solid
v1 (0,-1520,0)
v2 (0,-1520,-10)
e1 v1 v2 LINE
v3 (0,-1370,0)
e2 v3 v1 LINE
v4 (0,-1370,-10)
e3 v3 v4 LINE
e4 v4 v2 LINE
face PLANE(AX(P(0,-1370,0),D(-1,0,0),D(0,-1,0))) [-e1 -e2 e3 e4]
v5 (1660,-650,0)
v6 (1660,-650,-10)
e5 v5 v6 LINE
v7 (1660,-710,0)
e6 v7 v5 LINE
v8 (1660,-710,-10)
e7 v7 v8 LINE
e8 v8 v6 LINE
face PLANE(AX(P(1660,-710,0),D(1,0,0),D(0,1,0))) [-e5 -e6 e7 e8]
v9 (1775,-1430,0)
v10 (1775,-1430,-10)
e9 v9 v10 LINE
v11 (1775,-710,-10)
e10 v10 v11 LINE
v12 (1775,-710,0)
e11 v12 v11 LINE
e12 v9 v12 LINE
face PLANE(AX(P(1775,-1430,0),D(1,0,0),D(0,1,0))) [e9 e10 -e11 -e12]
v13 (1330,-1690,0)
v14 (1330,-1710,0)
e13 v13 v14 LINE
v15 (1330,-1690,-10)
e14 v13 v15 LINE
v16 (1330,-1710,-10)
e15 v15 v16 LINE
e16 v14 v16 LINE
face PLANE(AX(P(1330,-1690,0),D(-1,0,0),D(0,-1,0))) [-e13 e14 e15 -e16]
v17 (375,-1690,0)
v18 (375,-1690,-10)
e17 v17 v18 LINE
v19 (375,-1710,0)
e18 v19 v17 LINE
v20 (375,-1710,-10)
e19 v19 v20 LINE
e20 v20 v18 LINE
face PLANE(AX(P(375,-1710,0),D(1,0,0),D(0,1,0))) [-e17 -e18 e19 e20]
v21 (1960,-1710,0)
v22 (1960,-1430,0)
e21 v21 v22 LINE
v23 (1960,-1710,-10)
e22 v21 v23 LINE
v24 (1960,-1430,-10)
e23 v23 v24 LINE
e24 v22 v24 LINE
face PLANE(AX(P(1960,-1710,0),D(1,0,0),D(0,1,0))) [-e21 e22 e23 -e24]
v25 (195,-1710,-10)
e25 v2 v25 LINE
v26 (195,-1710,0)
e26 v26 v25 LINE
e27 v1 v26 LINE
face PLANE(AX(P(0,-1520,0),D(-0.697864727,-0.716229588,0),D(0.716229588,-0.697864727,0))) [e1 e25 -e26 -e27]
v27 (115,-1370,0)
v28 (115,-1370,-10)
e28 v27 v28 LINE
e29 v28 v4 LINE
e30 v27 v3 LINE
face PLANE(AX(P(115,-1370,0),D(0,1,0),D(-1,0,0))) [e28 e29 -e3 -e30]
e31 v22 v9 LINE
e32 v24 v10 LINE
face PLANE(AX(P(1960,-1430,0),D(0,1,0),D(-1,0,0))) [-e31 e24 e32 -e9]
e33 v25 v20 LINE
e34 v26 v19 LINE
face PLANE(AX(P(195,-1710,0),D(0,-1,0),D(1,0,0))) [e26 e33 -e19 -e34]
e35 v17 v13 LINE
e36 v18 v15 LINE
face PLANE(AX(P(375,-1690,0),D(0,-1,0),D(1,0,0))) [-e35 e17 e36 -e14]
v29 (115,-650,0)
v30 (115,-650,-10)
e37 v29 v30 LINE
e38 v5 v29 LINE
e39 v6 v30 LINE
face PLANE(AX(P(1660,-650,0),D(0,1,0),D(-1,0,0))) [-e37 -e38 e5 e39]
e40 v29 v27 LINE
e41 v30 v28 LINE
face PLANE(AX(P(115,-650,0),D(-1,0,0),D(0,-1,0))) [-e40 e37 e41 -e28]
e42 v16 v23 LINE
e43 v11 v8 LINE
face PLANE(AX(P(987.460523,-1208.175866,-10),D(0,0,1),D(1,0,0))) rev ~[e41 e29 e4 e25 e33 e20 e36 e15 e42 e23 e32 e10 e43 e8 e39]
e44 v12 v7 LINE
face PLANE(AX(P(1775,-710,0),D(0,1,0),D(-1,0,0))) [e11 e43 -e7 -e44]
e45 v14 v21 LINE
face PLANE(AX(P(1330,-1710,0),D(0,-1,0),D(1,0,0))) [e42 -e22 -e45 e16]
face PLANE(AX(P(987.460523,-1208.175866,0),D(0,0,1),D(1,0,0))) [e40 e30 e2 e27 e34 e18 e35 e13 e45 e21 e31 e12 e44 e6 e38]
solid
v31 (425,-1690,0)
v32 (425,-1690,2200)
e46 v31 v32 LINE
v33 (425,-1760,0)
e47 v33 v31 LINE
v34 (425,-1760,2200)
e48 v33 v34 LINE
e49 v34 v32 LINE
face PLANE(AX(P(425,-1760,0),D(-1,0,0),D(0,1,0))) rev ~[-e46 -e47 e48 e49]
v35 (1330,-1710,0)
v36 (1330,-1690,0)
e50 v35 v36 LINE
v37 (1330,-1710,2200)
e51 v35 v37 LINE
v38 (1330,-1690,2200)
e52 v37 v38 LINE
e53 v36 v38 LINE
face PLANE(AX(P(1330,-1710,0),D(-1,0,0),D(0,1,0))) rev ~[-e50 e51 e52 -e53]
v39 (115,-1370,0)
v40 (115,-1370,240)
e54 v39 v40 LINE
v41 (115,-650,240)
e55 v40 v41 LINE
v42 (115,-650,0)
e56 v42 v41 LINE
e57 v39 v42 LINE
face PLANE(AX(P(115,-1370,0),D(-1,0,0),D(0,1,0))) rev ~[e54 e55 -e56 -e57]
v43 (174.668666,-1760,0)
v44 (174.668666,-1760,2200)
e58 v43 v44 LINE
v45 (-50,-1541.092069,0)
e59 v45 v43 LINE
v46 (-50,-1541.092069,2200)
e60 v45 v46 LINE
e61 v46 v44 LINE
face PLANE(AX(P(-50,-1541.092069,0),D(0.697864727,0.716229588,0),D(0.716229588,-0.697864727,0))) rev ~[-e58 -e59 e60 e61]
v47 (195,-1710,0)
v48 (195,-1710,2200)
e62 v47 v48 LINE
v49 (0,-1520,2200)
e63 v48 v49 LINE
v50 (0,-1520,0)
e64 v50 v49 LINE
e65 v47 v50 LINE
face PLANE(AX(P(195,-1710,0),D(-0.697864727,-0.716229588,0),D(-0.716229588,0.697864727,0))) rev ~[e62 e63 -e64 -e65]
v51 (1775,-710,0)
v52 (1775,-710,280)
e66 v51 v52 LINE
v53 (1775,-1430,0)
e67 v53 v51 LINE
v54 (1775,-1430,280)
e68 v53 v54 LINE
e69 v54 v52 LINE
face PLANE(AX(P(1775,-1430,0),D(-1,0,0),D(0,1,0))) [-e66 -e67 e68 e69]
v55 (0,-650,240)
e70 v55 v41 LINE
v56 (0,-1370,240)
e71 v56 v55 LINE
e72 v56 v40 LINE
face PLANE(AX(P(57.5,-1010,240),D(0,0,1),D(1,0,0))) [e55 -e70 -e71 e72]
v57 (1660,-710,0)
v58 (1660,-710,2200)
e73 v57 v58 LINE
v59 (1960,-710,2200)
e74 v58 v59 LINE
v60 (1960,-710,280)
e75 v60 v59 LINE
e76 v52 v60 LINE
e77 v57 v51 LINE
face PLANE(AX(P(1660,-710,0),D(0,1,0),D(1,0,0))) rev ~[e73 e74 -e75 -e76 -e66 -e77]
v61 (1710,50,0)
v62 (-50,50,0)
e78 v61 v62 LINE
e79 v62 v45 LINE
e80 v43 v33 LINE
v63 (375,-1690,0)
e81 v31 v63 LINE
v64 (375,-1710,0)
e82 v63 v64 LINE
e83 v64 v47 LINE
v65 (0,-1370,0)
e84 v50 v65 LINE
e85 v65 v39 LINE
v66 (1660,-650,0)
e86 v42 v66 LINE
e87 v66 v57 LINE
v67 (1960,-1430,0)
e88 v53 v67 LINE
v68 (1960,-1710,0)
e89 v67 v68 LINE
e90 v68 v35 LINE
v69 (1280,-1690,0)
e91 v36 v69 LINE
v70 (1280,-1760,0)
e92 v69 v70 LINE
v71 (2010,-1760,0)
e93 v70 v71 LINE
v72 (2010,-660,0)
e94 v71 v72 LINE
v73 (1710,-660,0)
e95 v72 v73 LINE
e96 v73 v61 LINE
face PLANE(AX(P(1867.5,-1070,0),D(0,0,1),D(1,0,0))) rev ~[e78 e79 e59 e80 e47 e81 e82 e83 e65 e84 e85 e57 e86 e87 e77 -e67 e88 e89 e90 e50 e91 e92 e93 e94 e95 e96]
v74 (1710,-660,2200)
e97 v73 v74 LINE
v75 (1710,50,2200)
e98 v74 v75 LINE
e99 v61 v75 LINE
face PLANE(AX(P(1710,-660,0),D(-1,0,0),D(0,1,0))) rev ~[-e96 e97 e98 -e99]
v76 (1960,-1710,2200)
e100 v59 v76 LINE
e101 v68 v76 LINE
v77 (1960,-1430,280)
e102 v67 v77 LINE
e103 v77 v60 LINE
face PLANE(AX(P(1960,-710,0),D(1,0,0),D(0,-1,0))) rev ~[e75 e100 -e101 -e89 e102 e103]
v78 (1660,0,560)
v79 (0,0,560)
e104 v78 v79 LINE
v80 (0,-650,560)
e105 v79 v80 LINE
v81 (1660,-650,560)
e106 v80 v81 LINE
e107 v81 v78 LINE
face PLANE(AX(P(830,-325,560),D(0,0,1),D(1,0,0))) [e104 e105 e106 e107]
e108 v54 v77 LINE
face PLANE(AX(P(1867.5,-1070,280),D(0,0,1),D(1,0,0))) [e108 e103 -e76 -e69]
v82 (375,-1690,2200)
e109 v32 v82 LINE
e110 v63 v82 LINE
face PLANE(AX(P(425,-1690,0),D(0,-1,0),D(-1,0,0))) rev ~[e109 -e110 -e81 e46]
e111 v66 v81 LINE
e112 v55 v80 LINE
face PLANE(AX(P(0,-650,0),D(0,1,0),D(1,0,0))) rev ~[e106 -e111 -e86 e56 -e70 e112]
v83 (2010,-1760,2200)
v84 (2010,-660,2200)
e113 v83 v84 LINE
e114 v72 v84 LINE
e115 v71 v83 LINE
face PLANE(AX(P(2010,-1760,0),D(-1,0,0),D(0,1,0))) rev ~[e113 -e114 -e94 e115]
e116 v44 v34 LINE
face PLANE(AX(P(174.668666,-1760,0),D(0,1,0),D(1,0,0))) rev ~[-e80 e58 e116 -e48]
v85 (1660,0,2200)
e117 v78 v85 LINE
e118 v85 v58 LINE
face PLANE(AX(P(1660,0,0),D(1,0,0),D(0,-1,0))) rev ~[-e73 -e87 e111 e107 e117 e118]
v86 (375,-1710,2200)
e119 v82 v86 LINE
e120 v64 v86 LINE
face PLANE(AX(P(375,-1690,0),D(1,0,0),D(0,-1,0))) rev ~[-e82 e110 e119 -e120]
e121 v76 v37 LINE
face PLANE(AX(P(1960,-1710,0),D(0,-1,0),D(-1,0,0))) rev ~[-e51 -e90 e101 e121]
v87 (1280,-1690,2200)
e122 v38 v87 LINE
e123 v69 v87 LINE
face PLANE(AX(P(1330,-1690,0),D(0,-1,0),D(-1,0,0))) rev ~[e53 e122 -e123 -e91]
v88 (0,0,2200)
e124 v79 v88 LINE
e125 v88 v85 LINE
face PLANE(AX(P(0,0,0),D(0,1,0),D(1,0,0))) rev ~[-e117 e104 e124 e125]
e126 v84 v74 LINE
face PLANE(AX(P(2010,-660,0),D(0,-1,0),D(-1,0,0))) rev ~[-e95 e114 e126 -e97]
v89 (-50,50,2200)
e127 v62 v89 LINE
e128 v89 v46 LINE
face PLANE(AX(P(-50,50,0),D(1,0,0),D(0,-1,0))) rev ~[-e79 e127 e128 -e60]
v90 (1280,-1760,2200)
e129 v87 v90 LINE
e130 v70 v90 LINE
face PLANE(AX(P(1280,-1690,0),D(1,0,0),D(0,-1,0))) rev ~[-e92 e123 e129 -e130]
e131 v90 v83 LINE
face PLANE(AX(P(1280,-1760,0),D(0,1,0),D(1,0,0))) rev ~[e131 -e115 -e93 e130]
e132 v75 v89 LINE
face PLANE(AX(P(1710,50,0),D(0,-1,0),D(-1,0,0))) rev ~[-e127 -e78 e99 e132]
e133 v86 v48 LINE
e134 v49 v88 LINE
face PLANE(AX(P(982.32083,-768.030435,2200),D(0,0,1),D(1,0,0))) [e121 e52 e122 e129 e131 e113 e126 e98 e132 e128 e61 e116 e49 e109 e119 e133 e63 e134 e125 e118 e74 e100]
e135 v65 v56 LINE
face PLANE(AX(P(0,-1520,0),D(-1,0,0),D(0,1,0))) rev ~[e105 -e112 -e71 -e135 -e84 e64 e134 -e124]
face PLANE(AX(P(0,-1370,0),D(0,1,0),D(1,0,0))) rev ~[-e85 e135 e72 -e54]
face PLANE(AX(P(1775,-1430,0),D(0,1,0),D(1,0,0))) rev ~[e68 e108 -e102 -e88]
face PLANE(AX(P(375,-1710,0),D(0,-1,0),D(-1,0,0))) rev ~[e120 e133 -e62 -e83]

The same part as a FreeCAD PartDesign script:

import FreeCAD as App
import Part
import Sketcher
from FreeCAD import Vector
Q = App.Units.Quantity

doc = App.newDocument("Part")
body = doc.addObject("PartDesign::Body", "Body")

sketch1 = body.newObject("Sketcher::SketchObject", "Sketch")
sketch1.AttachmentSupport = (doc.getObject("XY_Plane"), [""])
sketch1.MapMode = "FlatFace"
sketch1.addGeometry(Part.LineSegment(Vector(0, 0, 0), Vector(1660, 0, 0)), False)
sketch1.addGeometry(Part.LineSegment(Vector(1660, 0, 0), Vector(1660, -710, 0)), False)
sketch1.addGeometry(Part.LineSegment(Vector(1660, -710, 0), Vector(1960, -710, 0)), False)
sketch1.addGeometry(Part.LineSegment(Vector(1960, -710, 0), Vector(1960, -1710, 0)), False)
sketch1.addGeometry(Part.LineSegment(Vector(1960, -1710, 0), Vector(1330, -1710, 0)), False)
sketch1.addGeometry(Part.LineSegment(Vector(1330, -1710, 0), Vector(1330, -1690, 0)), False)
sketch1.addGeometry(Part.LineSegment(Vector(1330, -1690, 0), Vector(1280, -1690, 0)), False)
sketch1.addGeometry(Part.LineSegment(Vector(1280, -1690, 0), Vector(1280, -1760, 0)), False)
sketch1.addGeometry(Part.LineSegment(Vector(1280, -1760, 0), Vector(2010, -1760, 0)), False)
sketch1.addGeometry(Part.LineSegment(Vector(2010, -1760, 0), Vector(2010, -660, 0)), False)
sketch1.addGeometry(Part.LineSegment(Vector(2010, -660, 0), Vector(1710, -660, 0)), False)
sketch1.addGeometry(Part.LineSegment(Vector(1710, -660, 0), Vector(1710, 50, 0)), False)
sketch1.addGeometry(Part.LineSegment(Vector(1710, 50, 0), Vector(-50, 50, 0)), False)
sketch1.addGeometry(Part.LineSegment(Vector(-50, 50, 0), Vector(-50, -1541, 0)), False)
sketch1.addGeometry(Part.LineSegment(Vector(-50, -1541, 0), Vector(175, -1760, 0)), False)
sketch1.addGeometry(Part.LineSegment(Vector(175, -1760, 0), Vector(425, -1760, 0)), False)
sketch1.addGeometry(Part.LineSegment(Vector(425, -1760, 0), Vector(425, -1690, 0)), False)
sketch1.addGeometry(Part.LineSegment(Vector(425, -1690, 0), Vector(375, -1690, 0)), False)
sketch1.addGeometry(Part.LineSegment(Vector(375, -1690, 0), Vector(375, -1710, 0)), False)
sketch1.addGeometry(Part.LineSegment(Vector(375, -1710, 0), Vector(195, -1710, 0)), False)
sketch1.addGeometry(Part.LineSegment(Vector(195, -1710, 0), Vector(0, -1520, 0)), False)
sketch1.addGeometry(Part.LineSegment(Vector(0, -1520, 0), Vector(0, 0, 0)), False)
sketch1.addConstraint(Sketcher.Constraint("Coincident", 0, 2, 1, 1))
sketch1.addConstraint(Sketcher.Constraint("Coincident", 1, 2, 2, 1))
sketch1.addConstraint(Sketcher.Constraint("Coincident", 2, 2, 3, 1))
sketch1.addConstraint(Sketcher.Constraint("Coincident", 3, 2, 4, 1))
sketch1.addConstraint(Sketcher.Constraint("Coincident", 4, 2, 5, 1))
sketch1.addConstraint(Sketcher.Constraint("Coincident", 5, 2, 6, 1))
sketch1.addConstraint(Sketcher.Constraint("Coincident", 6, 2, 7, 1))
sketch1.addConstraint(Sketcher.Constraint("Coincident", 7, 2, 8, 1))
sketch1.addConstraint(Sketcher.Constraint("Coincident", 8, 2, 9, 1))
sketch1.addConstraint(Sketcher.Constraint("Coincident", 9, 2, 10, 1))
sketch1.addConstraint(Sketcher.Constraint("Coincident", 10, 2, 11, 1))
sketch1.addConstraint(Sketcher.Constraint("Coincident", 11, 2, 12, 1))
sketch1.addConstraint(Sketcher.Constraint("Coincident", 12, 2, 13, 1))
sketch1.addConstraint(Sketcher.Constraint("Coincident", 13, 2, 14, 1))
sketch1.addConstraint(Sketcher.Constraint("Coincident", 14, 2, 15, 1))
sketch1.addConstraint(Sketcher.Constraint("Coincident", 15, 2, 16, 1))
sketch1.addConstraint(Sketcher.Constraint("Coincident", 16, 2, 17, 1))
sketch1.addConstraint(Sketcher.Constraint("Coincident", 17, 2, 18, 1))
sketch1.addConstraint(Sketcher.Constraint("Coincident", 18, 2, 19, 1))
sketch1.addConstraint(Sketcher.Constraint("Coincident", 19, 2, 20, 1))
sketch1.addConstraint(Sketcher.Constraint("Coincident", 20, 2, 21, 1))
sketch1.addConstraint(Sketcher.Constraint("Coincident", 21, 2, 0, 1))
sketch1.addConstraint(Sketcher.Constraint("Horizontal", 0))
sketch1.addConstraint(Sketcher.Constraint("Vertical", 1))
sketch1.addConstraint(Sketcher.Constraint("Horizontal", 2))
sketch1.addConstraint(Sketcher.Constraint("Vertical", 3))
sketch1.addConstraint(Sketcher.Constraint("Horizontal", 4))
sketch1.addConstraint(Sketcher.Constraint("Vertical", 5))
sketch1.addConstraint(Sketcher.Constraint("Horizontal", 6))
sketch1.addConstraint(Sketcher.Constraint("Vertical", 7))
sketch1.addConstraint(Sketcher.Constraint("Horizontal", 8))
sketch1.addConstraint(Sketcher.Constraint("Vertical", 9))
sketch1.addConstraint(Sketcher.Constraint("Horizontal", 10))
sketch1.addConstraint(Sketcher.Constraint("Vertical", 11))
sketch1.addConstraint(Sketcher.Constraint("Horizontal", 12))
sketch1.addConstraint(Sketcher.Constraint("Vertical", 13))
sketch1.addConstraint(Sketcher.Constraint("Horizontal", 15))
sketch1.addConstraint(Sketcher.Constraint("Vertical", 16))
sketch1.addConstraint(Sketcher.Constraint("Horizontal", 17))
sketch1.addConstraint(Sketcher.Constraint("Vertical", 18))
sketch1.addConstraint(Sketcher.Constraint("Horizontal", 19))
sketch1.addConstraint(Sketcher.Constraint("Vertical", 21))
sketch1.addConstraint(Sketcher.Constraint("Coincident", 21, 2, -1, 1))
sketch1.addConstraint(Sketcher.Constraint("Parallel", 14, 20))
sketch1.addConstraint(Sketcher.Constraint("Horizontal", 8, 2, 14, 2))
sketch1.addConstraint(Sketcher.Constraint("Horizontal", 6, 2, 16, 2))
sketch1.addConstraint(Sketcher.Constraint("Horizontal", 4, 2, 18, 2))
sketch1.addConstraint(Sketcher.Constraint("Equal", 2, 10))
sketch1.addConstraint(Sketcher.Constraint("Equal", 6, 17))
sketch1.addConstraint(Sketcher.Constraint("Equal", 1, 11))
sketch1.addConstraint(Sketcher.Constraint("DistanceX", 0, 1, 0, 2, Q("1660 mm")))
sketch1.addConstraint(Sketcher.Constraint("DistanceX", 2, 1, 2, 2, Q("300 mm")))
sketch1.addConstraint(Sketcher.Constraint("DistanceX", 4, 2, 4, 1, Q("630 mm")))
sketch1.addConstraint(Sketcher.Constraint("DistanceX", 6, 2, 6, 1, Q("50 mm")))
sketch1.addConstraint(Sketcher.Constraint("DistanceX", 8, 1, 8, 2, Q("730 mm")))
sketch1.addConstraint(Sketcher.Constraint("DistanceX", 12, 2, 12, 1, Q("1760 mm")))
sketch1.addConstraint(Sketcher.Constraint("DistanceX", 19, 2, 19, 1, Q("180 mm")))
sketch1.addConstraint(Sketcher.Constraint("DistanceY", 1, 2, 1, 1, Q("710 mm")))
sketch1.addConstraint(Sketcher.Constraint("DistanceY", 3, 2, 3, 1, Q("1000 mm")))
sketch1.addConstraint(Sketcher.Constraint("DistanceY", 5, 1, 5, 2, Q("20 mm")))
sketch1.addConstraint(Sketcher.Constraint("DistanceY", 7, 2, 7, 1, Q("70 mm")))
sketch1.addConstraint(Sketcher.Constraint("DistanceY", 9, 1, 9, 2, Q("1100 mm")))
sketch1.addConstraint(Sketcher.Constraint("DistanceY", 21, 1, 21, 2, Q("1520 mm")))
sketch1.addConstraint(Sketcher.Constraint("DistanceX", -1, 1, 15, 2, Q("425 mm")))
sketch1.addConstraint(Sketcher.Constraint("DistanceY", 13, 2, 13, 1, Q("1591.092069 mm")))
pad1 = body.newObject("PartDesign::Pad", "Pad")
pad1.Profile = sketch1
pad1.Length = 2200

sketch2 = body.newObject("Sketcher::SketchObject", "Sketch001")
sketch2.AttachmentSupport = (doc.getObject("XY_Plane"), [""])
sketch2.MapMode = "FlatFace"
sketch2.addGeometry(Part.LineSegment(Vector(1660, 0, 0), Vector(0, 0, 0)), False)
sketch2.addGeometry(Part.LineSegment(Vector(0, 0, 0), Vector(0, -650, 0)), False)
sketch2.addGeometry(Part.LineSegment(Vector(0, -650, 0), Vector(1660, -650, 0)), False)
sketch2.addGeometry(Part.LineSegment(Vector(1660, -650, 0), Vector(1660, 0, 0)), False)
sketch2.addConstraint(Sketcher.Constraint("Coincident", 0, 2, 1, 1))
sketch2.addConstraint(Sketcher.Constraint("Coincident", 1, 2, 2, 1))
sketch2.addConstraint(Sketcher.Constraint("Coincident", 2, 2, 3, 1))
sketch2.addConstraint(Sketcher.Constraint("Coincident", 3, 2, 0, 1))
sketch2.addConstraint(Sketcher.Constraint("Horizontal", 0))
sketch2.addConstraint(Sketcher.Constraint("Vertical", 1))
sketch2.addConstraint(Sketcher.Constraint("Horizontal", 2))
sketch2.addConstraint(Sketcher.Constraint("Vertical", 3))
sketch2.addConstraint(Sketcher.Constraint("Coincident", 0, 2, -1, 1))
sketch2.addConstraint(Sketcher.Constraint("DistanceX", 0, 2, 0, 1, Q("1660 mm")))
sketch2.addConstraint(Sketcher.Constraint("DistanceY", 1, 2, 1, 1, Q("650 mm")))
pad2 = body.newObject("PartDesign::Pad", "Pad001")
pad2.Profile = sketch2
pad2.Length = 560

sketch3 = body.newObject("Sketcher::SketchObject", "Sketch002")
sketch3.AttachmentSupport = (doc.getObject("XY_Plane"), [""])
sketch3.MapMode = "FlatFace"
sketch3.addGeometry(Part.LineSegment(Vector(0, -650, 0), Vector(0, -1370, 0)), False)
sketch3.addGeometry(Part.LineSegment(Vector(0, -1370, 0), Vector(115, -1370, 0)), False)
sketch3.addGeometry(Part.LineSegment(Vector(115, -1370, 0), Vector(115, -650, 0)), False)
sketch3.addGeometry(Part.LineSegment(Vector(115, -650, 0), Vector(0, -650, 0)), False)
sketch3.addConstraint(Sketcher.Constraint("Coincident", 0, 2, 1, 1))
sketch3.addConstraint(Sketcher.Constraint("Coincident", 1, 2, 2, 1))
sketch3.addConstraint(Sketcher.Constraint("Coincident", 2, 2, 3, 1))
sketch3.addConstraint(Sketcher.Constraint("Coincident", 3, 2, 0, 1))
sketch3.addConstraint(Sketcher.Constraint("Vertical", 0))
sketch3.addConstraint(Sketcher.Constraint("Horizontal", 1))
sketch3.addConstraint(Sketcher.Constraint("Vertical", 2))
sketch3.addConstraint(Sketcher.Constraint("Horizontal", 3))
sketch3.addConstraint(Sketcher.Constraint("PointOnObject", 0, 2, -2))
sketch3.addConstraint(Sketcher.Constraint("DistanceX", 1, 1, 1, 2, Q("115 mm")))
sketch3.addConstraint(Sketcher.Constraint("DistanceY", 0, 2, 0, 1, Q("720 mm")))
sketch3.addConstraint(Sketcher.Constraint("DistanceY", 0, 2, -1, 1, Q("1370 mm")))
pad3 = body.newObject("PartDesign::Pad", "Pad002")
pad3.Profile = sketch3
pad3.Length = 240

sketch4 = body.newObject("Sketcher::SketchObject", "Sketch003")
sketch4.AttachmentSupport = (doc.getObject("XY_Plane"), [""])
sketch4.MapMode = "FlatFace"
sketch4.addGeometry(Part.LineSegment(Vector(1775, -710, 0), Vector(1775, -1430, 0)), False)
sketch4.addGeometry(Part.LineSegment(Vector(1775, -1430, 0), Vector(1960, -1430, 0)), False)
sketch4.addGeometry(Part.LineSegment(Vector(1960, -1430, 0), Vector(1960, -710, 0)), False)
sketch4.addGeometry(Part.LineSegment(Vector(1960, -710, 0), Vector(1775, -710, 0)), False)
sketch4.addConstraint(Sketcher.Constraint("Coincident", 0, 2, 1, 1))
sketch4.addConstraint(Sketcher.Constraint("Coincident", 1, 2, 2, 1))
sketch4.addConstraint(Sketcher.Constraint("Coincident", 2, 2, 3, 1))
sketch4.addConstraint(Sketcher.Constraint("Coincident", 3, 2, 0, 1))
sketch4.addConstraint(Sketcher.Constraint("Vertical", 0))
sketch4.addConstraint(Sketcher.Constraint("Horizontal", 1))
sketch4.addConstraint(Sketcher.Constraint("Vertical", 2))
sketch4.addConstraint(Sketcher.Constraint("Horizontal", 3))
sketch4.addConstraint(Sketcher.Constraint("DistanceX", 1, 1, 1, 2, Q("185 mm")))
sketch4.addConstraint(Sketcher.Constraint("DistanceY", 0, 2, 0, 1, Q("720 mm")))
sketch4.addConstraint(Sketcher.Constraint("DistanceX", -1, 1, 0, 2, Q("1775 mm")))
sketch4.addConstraint(Sketcher.Constraint("DistanceY", 0, 2, -1, 1, Q("1430 mm")))
pad4 = body.newObject("PartDesign::Pad", "Pad003")
pad4.Profile = sketch4
pad4.Length = 280
body2 = doc.addObject("PartDesign::Body", "Body001")

sketch5 = body2.newObject("Sketcher::SketchObject", "Sketch004")
sketch5.AttachmentSupport = (doc.getObject("XY_Plane001"), [""])
sketch5.MapMode = "FlatFace"
sketch5.addGeometry(Part.LineSegment(Vector(1660, -710, 0), Vector(1660, -650, 0)), False)
sketch5.addGeometry(Part.LineSegment(Vector(1660, -650, 0), Vector(115, -650, 0)), False)
sketch5.addGeometry(Part.LineSegment(Vector(115, -650, 0), Vector(115, -1370, 0)), False)
sketch5.addGeometry(Part.LineSegment(Vector(115, -1370, 0), Vector(0, -1370, 0)), False)
sketch5.addGeometry(Part.LineSegment(Vector(0, -1370, 0), Vector(0, -1520, 0)), False)
sketch5.addGeometry(Part.LineSegment(Vector(0, -1520, 0), Vector(195, -1710, 0)), False)
sketch5.addGeometry(Part.LineSegment(Vector(195, -1710, 0), Vector(375, -1710, 0)), False)
sketch5.addGeometry(Part.LineSegment(Vector(375, -1710, 0), Vector(375, -1690, 0)), False)
sketch5.addGeometry(Part.LineSegment(Vector(375, -1690, 0), Vector(1330, -1690, 0)), False)
sketch5.addGeometry(Part.LineSegment(Vector(1330, -1690, 0), Vector(1330, -1710, 0)), False)
sketch5.addGeometry(Part.LineSegment(Vector(1330, -1710, 0), Vector(1960, -1710, 0)), False)
sketch5.addGeometry(Part.LineSegment(Vector(1960, -1710, 0), Vector(1960, -1430, 0)), False)
sketch5.addGeometry(Part.LineSegment(Vector(1960, -1430, 0), Vector(1775, -1430, 0)), False)
sketch5.addGeometry(Part.LineSegment(Vector(1775, -1430, 0), Vector(1775, -710, 0)), False)
sketch5.addGeometry(Part.LineSegment(Vector(1775, -710, 0), Vector(1660, -710, 0)), False)
sketch5.addConstraint(Sketcher.Constraint("Coincident", 0, 2, 1, 1))
sketch5.addConstraint(Sketcher.Constraint("Coincident", 1, 2, 2, 1))
sketch5.addConstraint(Sketcher.Constraint("Coincident", 2, 2, 3, 1))
sketch5.addConstraint(Sketcher.Constraint("Coincident", 3, 2, 4, 1))
sketch5.addConstraint(Sketcher.Constraint("Coincident", 4, 2, 5, 1))
sketch5.addConstraint(Sketcher.Constraint("Coincident", 5, 2, 6, 1))
sketch5.addConstraint(Sketcher.Constraint("Coincident", 6, 2, 7, 1))
sketch5.addConstraint(Sketcher.Constraint("Coincident", 7, 2, 8, 1))
sketch5.addConstraint(Sketcher.Constraint("Coincident", 8, 2, 9, 1))
sketch5.addConstraint(Sketcher.Constraint("Coincident", 9, 2, 10, 1))
sketch5.addConstraint(Sketcher.Constraint("Coincident", 10, 2, 11, 1))
sketch5.addConstraint(Sketcher.Constraint("Coincident", 11, 2, 12, 1))
sketch5.addConstraint(Sketcher.Constraint("Coincident", 12, 2, 13, 1))
sketch5.addConstraint(Sketcher.Constraint("Coincident", 13, 2, 14, 1))
sketch5.addConstraint(Sketcher.Constraint("Coincident", 14, 2, 0, 1))
sketch5.addConstraint(Sketcher.Constraint("Vertical", 0))
sketch5.addConstraint(Sketcher.Constraint("Horizontal", 1))
sketch5.addConstraint(Sketcher.Constraint("Vertical", 2))
sketch5.addConstraint(Sketcher.Constraint("Horizontal", 3))
sketch5.addConstraint(Sketcher.Constraint("Vertical", 4))
sketch5.addConstraint(Sketcher.Constraint("Horizontal", 6))
sketch5.addConstraint(Sketcher.Constraint("Vertical", 7))
sketch5.addConstraint(Sketcher.Constraint("Horizontal", 8))
sketch5.addConstraint(Sketcher.Constraint("Vertical", 9))
sketch5.addConstraint(Sketcher.Constraint("Horizontal", 10))
sketch5.addConstraint(Sketcher.Constraint("Vertical", 11))
sketch5.addConstraint(Sketcher.Constraint("Horizontal", 12))
sketch5.addConstraint(Sketcher.Constraint("Vertical", 13))
sketch5.addConstraint(Sketcher.Constraint("Horizontal", 14))
sketch5.addConstraint(Sketcher.Constraint("PointOnObject", 3, 2, -2))
sketch5.addConstraint(Sketcher.Constraint("Horizontal", 6, 2, 9, 2))
sketch5.addConstraint(Sketcher.Constraint("Equal", 3, 14))
sketch5.addConstraint(Sketcher.Constraint("Equal", 2, 13))
sketch5.addConstraint(Sketcher.Constraint("DistanceX", 1, 2, 1, 1, Q("1545 mm")))
sketch5.addConstraint(Sketcher.Constraint("DistanceX", 3, 2, 3, 1, Q("115 mm")))
sketch5.addConstraint(Sketcher.Constraint("DistanceX", 6, 1, 6, 2, Q("180 mm")))
sketch5.addConstraint(Sketcher.Constraint("DistanceX", 8, 1, 8, 2, Q("955 mm")))
sketch5.addConstraint(Sketcher.Constraint("DistanceX", 10, 1, 10, 2, Q("630 mm")))
sketch5.addConstraint(Sketcher.Constraint("DistanceX", 12, 2, 12, 1, Q("185 mm")))
sketch5.addConstraint(Sketcher.Constraint("DistanceY", 0, 1, 0, 2, Q("60 mm")))
sketch5.addConstraint(Sketcher.Constraint("DistanceY", 2, 2, 2, 1, Q("720 mm")))
sketch5.addConstraint(Sketcher.Constraint("DistanceY", 4, 2, 4, 1, Q("150 mm")))
sketch5.addConstraint(Sketcher.Constraint("DistanceY", 7, 1, 7, 2, Q("20 mm")))
sketch5.addConstraint(Sketcher.Constraint("DistanceY", 11, 1, 11, 2, Q("280 mm")))
sketch5.addConstraint(Sketcher.Constraint("DistanceY", 0, 2, -1, 1, Q("650 mm")))
pad5 = body2.newObject("PartDesign::Pad", "Pad004")
pad5.Profile = sketch5
pad5.Length = 10
pad5.Reversed = True

doc.recompute()
